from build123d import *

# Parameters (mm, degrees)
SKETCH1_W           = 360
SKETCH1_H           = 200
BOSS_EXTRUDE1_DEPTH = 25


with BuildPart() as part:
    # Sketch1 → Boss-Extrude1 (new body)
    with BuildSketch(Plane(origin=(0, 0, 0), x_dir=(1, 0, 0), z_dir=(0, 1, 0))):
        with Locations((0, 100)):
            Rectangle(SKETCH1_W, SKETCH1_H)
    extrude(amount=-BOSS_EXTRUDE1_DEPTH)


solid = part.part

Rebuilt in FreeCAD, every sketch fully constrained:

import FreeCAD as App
import Part
import Sketcher
Q = App.Units.Quantity


def add_polygon(sketch, points):
    """Adds a closed chain of lines whose ends are joined by coincident constraints."""
    first, n = sketch.GeometryCount, len(points)
    for a, b in zip(points, points[1:] + points[:1]):
        sketch.addGeometry(Part.LineSegment(App.Vector(*a, 0), App.Vector(*b, 0)), False)
    for i in range(n):
        sketch.addConstraint(Sketcher.Constraint("Coincident", first + i, 2, first + (i + 1) % n, 1))

doc = App.newDocument("Part")
body = doc.addObject("PartDesign::Body", "Body")

# Sketch on XZ plane
sketch1 = doc.addObject("Sketcher::SketchObject", "Sketch")
body.addObject(sketch1)
sketch1.AttachmentSupport = (doc.XZ_Plane, [""])
sketch1.MapMode = "FlatFace"
add_polygon(sketch1, [(-180, -200), (-180, 0), (180, 0), (180, -200)])  # lines 0-3
sketch1.addConstraint(Sketcher.Constraint("Vertical", 0))
sketch1.addConstraint(Sketcher.Constraint("Horizontal", 1))
sketch1.addConstraint(Sketcher.Constraint("Vertical", 2))
sketch1.addConstraint(Sketcher.Constraint("Horizontal", 3))
sketch1.addConstraint(Sketcher.Constraint("Symmetric", 0, 2, 1, 2, -1, 1))
sketch1.addConstraint(Sketcher.Constraint("DistanceX", 1, 1, 1, 2, Q("360 mm")))
sketch1.addConstraint(Sketcher.Constraint("DistanceY", 0, 1, 0, 2, Q("200 mm")))
pad1 = doc.addObject("PartDesign::Pad", "Pad")
body.addObject(pad1)
pad1.Profile = sketch1
pad1.Length = 25

doc.recompute()
